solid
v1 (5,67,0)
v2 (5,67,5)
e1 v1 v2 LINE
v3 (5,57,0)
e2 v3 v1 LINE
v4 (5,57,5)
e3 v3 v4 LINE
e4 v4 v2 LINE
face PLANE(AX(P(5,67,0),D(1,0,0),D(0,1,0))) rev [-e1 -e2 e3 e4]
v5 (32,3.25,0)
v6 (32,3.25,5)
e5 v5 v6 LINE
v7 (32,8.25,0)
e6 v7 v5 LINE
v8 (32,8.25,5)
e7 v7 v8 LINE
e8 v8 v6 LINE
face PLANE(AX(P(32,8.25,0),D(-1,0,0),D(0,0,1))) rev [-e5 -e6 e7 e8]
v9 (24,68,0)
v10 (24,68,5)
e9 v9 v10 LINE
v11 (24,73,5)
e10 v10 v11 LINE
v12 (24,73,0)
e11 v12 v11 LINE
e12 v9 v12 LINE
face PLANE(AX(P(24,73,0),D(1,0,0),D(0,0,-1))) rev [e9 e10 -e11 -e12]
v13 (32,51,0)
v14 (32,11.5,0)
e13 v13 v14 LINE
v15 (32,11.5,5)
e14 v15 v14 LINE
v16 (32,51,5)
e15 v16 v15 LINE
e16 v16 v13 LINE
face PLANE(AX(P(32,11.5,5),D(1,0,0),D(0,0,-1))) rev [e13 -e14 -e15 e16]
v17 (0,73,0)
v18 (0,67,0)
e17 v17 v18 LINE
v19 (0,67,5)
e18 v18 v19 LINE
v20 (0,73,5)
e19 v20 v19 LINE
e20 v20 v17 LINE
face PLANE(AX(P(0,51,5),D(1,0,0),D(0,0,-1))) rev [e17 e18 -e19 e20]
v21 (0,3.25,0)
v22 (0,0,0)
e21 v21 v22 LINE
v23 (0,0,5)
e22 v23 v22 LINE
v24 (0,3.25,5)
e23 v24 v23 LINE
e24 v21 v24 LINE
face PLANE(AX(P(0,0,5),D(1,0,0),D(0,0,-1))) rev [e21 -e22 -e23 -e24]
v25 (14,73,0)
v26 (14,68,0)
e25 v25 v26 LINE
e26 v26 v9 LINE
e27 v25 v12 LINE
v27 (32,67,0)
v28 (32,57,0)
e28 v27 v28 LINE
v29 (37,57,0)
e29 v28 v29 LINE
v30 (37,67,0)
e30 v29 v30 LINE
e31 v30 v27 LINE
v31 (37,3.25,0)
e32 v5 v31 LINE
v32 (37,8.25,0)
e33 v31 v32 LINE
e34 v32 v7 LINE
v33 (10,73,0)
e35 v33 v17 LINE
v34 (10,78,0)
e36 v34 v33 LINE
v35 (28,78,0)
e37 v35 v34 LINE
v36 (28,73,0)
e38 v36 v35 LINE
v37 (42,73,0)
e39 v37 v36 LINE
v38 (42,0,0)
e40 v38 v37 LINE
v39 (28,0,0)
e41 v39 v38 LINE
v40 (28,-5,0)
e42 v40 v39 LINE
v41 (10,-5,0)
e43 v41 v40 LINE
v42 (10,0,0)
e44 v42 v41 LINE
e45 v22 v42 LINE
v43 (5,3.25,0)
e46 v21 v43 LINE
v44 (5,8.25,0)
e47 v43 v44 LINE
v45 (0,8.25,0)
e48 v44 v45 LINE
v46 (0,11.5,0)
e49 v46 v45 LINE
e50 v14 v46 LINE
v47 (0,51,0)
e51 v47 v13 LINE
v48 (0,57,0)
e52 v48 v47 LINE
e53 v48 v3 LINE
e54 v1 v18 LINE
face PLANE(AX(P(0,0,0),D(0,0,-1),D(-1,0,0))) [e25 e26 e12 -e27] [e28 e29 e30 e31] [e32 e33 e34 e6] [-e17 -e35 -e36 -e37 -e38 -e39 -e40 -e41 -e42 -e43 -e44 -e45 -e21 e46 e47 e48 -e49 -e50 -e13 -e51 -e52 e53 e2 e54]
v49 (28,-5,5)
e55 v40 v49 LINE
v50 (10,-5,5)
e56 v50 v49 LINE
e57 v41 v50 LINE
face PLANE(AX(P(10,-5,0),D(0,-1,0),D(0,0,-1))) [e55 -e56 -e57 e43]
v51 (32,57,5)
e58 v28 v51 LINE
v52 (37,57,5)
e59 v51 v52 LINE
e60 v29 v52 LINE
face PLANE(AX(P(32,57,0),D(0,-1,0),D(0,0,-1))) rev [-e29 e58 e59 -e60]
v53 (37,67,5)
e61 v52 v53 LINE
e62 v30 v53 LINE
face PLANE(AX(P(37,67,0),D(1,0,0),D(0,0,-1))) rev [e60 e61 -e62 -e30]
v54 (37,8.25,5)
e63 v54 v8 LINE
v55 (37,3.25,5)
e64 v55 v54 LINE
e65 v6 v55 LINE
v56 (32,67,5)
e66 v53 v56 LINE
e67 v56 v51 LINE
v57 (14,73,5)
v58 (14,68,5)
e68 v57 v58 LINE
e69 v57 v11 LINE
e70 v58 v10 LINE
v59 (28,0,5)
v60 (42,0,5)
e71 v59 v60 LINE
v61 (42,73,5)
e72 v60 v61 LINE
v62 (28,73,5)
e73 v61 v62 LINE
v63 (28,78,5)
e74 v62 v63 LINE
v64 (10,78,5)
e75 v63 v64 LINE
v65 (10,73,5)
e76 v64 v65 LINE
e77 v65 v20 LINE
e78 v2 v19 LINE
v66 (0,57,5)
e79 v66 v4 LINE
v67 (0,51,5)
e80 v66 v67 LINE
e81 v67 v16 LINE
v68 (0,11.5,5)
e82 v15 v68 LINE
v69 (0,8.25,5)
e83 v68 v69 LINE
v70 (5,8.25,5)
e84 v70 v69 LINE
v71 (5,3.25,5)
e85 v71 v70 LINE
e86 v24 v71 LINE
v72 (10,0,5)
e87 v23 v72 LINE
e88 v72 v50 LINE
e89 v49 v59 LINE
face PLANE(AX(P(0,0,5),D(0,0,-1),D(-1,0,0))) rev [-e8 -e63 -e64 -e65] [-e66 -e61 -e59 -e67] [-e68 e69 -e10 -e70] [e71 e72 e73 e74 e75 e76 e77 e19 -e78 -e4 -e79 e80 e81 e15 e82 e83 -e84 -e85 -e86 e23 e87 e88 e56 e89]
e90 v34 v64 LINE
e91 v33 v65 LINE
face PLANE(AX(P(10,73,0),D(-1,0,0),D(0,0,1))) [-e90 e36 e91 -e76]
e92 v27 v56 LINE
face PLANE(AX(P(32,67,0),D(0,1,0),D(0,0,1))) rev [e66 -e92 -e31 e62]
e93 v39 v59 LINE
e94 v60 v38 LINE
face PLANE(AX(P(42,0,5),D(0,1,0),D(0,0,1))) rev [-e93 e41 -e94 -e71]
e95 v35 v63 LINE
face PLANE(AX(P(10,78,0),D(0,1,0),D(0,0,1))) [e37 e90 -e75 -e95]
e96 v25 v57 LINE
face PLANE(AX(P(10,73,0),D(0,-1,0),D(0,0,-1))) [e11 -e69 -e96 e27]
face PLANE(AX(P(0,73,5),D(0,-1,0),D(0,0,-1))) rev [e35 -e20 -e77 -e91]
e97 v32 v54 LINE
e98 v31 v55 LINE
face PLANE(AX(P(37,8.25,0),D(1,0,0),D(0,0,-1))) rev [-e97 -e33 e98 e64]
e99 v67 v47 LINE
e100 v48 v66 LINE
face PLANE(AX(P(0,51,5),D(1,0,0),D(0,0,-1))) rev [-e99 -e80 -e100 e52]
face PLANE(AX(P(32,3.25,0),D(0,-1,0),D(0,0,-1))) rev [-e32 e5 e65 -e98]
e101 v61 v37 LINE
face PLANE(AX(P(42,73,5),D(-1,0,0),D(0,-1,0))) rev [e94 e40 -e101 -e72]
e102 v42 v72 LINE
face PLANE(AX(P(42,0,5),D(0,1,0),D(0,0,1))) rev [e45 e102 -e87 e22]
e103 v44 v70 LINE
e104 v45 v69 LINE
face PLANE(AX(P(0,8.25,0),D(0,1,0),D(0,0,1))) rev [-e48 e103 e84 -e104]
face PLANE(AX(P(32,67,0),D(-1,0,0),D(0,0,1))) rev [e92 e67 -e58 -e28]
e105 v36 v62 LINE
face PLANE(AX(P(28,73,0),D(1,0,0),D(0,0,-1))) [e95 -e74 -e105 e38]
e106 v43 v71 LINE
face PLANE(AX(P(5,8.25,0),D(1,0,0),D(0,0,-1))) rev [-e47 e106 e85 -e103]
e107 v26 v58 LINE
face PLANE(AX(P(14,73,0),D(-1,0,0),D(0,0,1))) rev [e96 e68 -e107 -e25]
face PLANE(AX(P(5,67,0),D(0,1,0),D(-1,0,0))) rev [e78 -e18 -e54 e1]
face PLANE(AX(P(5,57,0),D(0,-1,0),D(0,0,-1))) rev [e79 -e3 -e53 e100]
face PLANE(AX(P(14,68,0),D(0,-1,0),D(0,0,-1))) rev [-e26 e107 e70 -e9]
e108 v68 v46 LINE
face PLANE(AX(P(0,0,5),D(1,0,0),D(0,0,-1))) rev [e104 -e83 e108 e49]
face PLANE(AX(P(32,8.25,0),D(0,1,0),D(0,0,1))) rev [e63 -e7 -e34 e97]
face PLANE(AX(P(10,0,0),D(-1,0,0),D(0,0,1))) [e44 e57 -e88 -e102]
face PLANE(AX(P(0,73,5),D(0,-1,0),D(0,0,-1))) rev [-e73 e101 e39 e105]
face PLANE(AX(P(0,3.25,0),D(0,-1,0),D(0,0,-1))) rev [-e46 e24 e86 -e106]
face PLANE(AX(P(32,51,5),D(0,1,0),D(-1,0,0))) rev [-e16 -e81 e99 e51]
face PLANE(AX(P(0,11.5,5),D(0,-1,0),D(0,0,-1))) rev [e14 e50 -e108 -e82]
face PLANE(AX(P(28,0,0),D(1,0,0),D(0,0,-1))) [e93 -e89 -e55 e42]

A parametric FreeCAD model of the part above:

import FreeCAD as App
import Part
import Sketcher

V = App.Vector
Q = App.Units.Quantity


def add_polygon(sketch, points):
    """Adds a closed chain of lines whose ends are joined by coincident constraints."""
    first, n = sketch.GeometryCount, len(points)
    for a, b in zip(points, points[1:] + points[:1]):
        sketch.addGeometry(Part.LineSegment(App.Vector(*a, 0), App.Vector(*b, 0)), False)
    for i in range(n):
        sketch.addConstraint(Sketcher.Constraint("Coincident", first + i, 2, first + (i + 1) % n, 1))

doc = App.newDocument("Part")
body = doc.addObject("PartDesign::Body", "Body")

# Sketch on XY plane
sketch1 = doc.addObject("Sketcher::SketchObject", "Sketch")
body.addObject(sketch1)
sketch1.AttachmentSupport = (doc.XY_Plane, [""])
sketch1.MapMode = "FlatFace"
add_polygon(sketch1, [(42, 73), (0, 73), (0, 51), (32, 51), (32, 11.5), (0, 11.5), (0, 0), (42, 0)])  # lines 0-7
sketch1.addConstraint([
    Sketcher.Constraint("Horizontal", 0),
    Sketcher.Constraint("Vertical", 1),
    Sketcher.Constraint("Horizontal", 2),
    Sketcher.Constraint("Vertical", 3),
    Sketcher.Constraint("Horizontal", 4),
    Sketcher.Constraint("Vertical", 5),
    Sketcher.Constraint("Horizontal", 6),
    Sketcher.Constraint("Vertical", 7),
    Sketcher.Constraint("Coincident", 5, 2, -1, 1),
    Sketcher.Constraint("PointOnObject", 0, 2, -2),
    Sketcher.Constraint("DistanceX", 0, 2, 0, 1, Q("42 mm")),
    Sketcher.Constraint("DistanceX", 2, 1, 2, 2, Q("32 mm")),
    Sketcher.Constraint("DistanceY", 1, 2, 1, 1, Q("22 mm")),
    Sketcher.Constraint("DistanceY", 7, 1, 7, 2, Q("73 mm")),
    Sketcher.Constraint("DistanceY", 3, 2, 3, 1, Q("39.5 mm")),
])
pad1 = doc.addObject("PartDesign::Pad", "Pad")
body.addObject(pad1)
pad1.Profile = sketch1
pad1.Length = 5

# Sketch on XY plane
sketch2 = doc.addObject("Sketcher::SketchObject", "Sketch001")
body.addObject(sketch2)
sketch2.AttachmentSupport = (doc.XY_Plane, [""])
sketch2.MapMode = "FlatFace"
sketch2.AttachmentOffset = App.Placement(V(0, 0, 5), App.Rotation())
add_polygon(sketch2, [(0, 67), (0, 57), (5, 57), (5, 67)])  # lines 0-3
add_polygon(sketch2, [(0, 8.25), (0, 3.25), (5, 3.25), (5, 8.25)])  # lines 4-7
add_polygon(sketch2, [(32, 67), (32, 57), (37, 57), (37, 67)])  # lines 8-11
add_polygon(sketch2, [(32, 8.25), (32, 3.25), (37, 3.25), (37, 8.25)])  # lines 12-15
add_polygon(sketch2, [(14, 73), (14, 68), (24, 68), (24, 73)])  # lines 16-19
sketch2.addConstraint([
    Sketcher.Constraint("Vertical", 0),
    Sketcher.Constraint("Horizontal", 1),
    Sketcher.Constraint("Vertical", 2),
    Sketcher.Constraint("Horizontal", 3),
    Sketcher.Constraint("Vertical", 4),
    Sketcher.Constraint("Horizontal", 5),
    Sketcher.Constraint("Vertical", 6),
    Sketcher.Constraint("Horizontal", 7),
    Sketcher.Constraint("Vertical", 8),
    Sketcher.Constraint("Horizontal", 9),
    Sketcher.Constraint("Vertical", 10),
    Sketcher.Constraint("Horizontal", 11),
    Sketcher.Constraint("Vertical", 12),
    Sketcher.Constraint("Horizontal", 13),
    Sketcher.Constraint("Vertical", 14),
    Sketcher.Constraint("Horizontal", 15),
    Sketcher.Constraint("Vertical", 16),
    Sketcher.Constraint("Horizontal", 17),
    Sketcher.Constraint("Vertical", 18),
    Sketcher.Constraint("Horizontal", 19),
    Sketcher.Constraint("PointOnObject", 0, 2, -2),
    Sketcher.Constraint("PointOnObject", 4, 2, -2),
    Sketcher.Constraint("Horizontal", 1, 2, 8, 2),
    Sketcher.Constraint("Horizontal", 3, 2, 10, 2),
    Sketcher.Constraint("Horizontal", 5, 2, 12, 2),
    Sketcher.Constraint("Horizontal", 7, 2, 14, 2),
    Sketcher.Constraint("Vertical", 2, 2, 5, 2),
    Sketcher.Constraint("Vertical", 11, 2, 12, 2),
    Sketcher.Constraint("Vertical", 10, 2, 13, 2),
    Sketcher.Constraint("Equal", 7, 9),
    Sketcher.Constraint("Equal", 19, 0),
    Sketcher.Constraint("Equal", 15, 4),
    Sketcher.Constraint("Equal", 14, 16),
    Sketcher.Constraint("DistanceX", 1, 1, 1, 2, Q("5 mm")),
    Sketcher.Constraint("DistanceX", 17, 1, 17, 2, Q("10 mm")),
    Sketcher.Constraint("DistanceY", -1, 1, 0, 2, Q("57 mm")),
    Sketcher.Constraint("DistanceX", -1, 1, 8, 2, Q("32 mm")),
    Sketcher.Constraint("DistanceX", -1, 1, 16, 2, Q("14 mm")),
    Sketcher.Constraint("DistanceY", -1, 1, 16, 2, Q("68 mm")),
    Sketcher.Constraint("DistanceY", -1, 1, 4, 2, Q("3.25 mm")),
])
pocket1 = doc.addObject("PartDesign::Pocket", "Pocket")
body.addObject(pocket1)
pocket1.Profile = sketch2
pocket1.Length = 5

# Sketch on XY plane
sketch3 = doc.addObject("Sketcher::SketchObject", "Sketch002")
body.addObject(sketch3)
sketch3.AttachmentSupport = (doc.XY_Plane, [""])
sketch3.MapMode = "FlatFace"
sketch3.AttachmentOffset = App.Placement(V(0, 0, 5), App.Rotation())
add_polygon(sketch3, [(10, 78), (10, 73), (28, 73), (28, 78)])  # lines 0-3
add_polygon(sketch3, [(10, 0), (10, -5), (28, -5), (28, 0)])  # lines 4-7
sketch3.addConstraint([
    Sketcher.Constraint("Vertical", 0),
    Sketcher.Constraint("Horizontal", 1),
    Sketcher.Constraint("Vertical", 2),
    Sketcher.Constraint("Horizontal", 3),
    Sketcher.Constraint("Vertical", 4),
    Sketcher.Constraint("Horizontal", 5),
    Sketcher.Constraint("Vertical", 6),
    Sketcher.Constraint("Horizontal", 7),
    Sketcher.Constraint("PointOnObject", 6, 2, -1),
    Sketcher.Constraint("Vertical", 3, 2, 4, 2),
    Sketcher.Constraint("Vertical", 2, 2, 5, 2),
    Sketcher.Constraint("Equal", 2, 4),
    Sketcher.Constraint("DistanceX", 1, 1, 1, 2, Q("18 mm")),
    Sketcher.Constraint("DistanceY", 0, 2, 0, 1, Q("5 mm")),
    Sketcher.Constraint("DistanceX", -1, 1, 0, 2, Q("10 mm")),
    Sketcher.Constraint("DistanceY", -1, 1, 0, 2, Q("73 mm")),
])
pad2 = doc.addObject("PartDesign::Pad", "Pad001")
body.addObject(pad2)
pad2.Profile = sketch3
pad2.Length = 5
pad2.Reversed = True

doc.recompute()
